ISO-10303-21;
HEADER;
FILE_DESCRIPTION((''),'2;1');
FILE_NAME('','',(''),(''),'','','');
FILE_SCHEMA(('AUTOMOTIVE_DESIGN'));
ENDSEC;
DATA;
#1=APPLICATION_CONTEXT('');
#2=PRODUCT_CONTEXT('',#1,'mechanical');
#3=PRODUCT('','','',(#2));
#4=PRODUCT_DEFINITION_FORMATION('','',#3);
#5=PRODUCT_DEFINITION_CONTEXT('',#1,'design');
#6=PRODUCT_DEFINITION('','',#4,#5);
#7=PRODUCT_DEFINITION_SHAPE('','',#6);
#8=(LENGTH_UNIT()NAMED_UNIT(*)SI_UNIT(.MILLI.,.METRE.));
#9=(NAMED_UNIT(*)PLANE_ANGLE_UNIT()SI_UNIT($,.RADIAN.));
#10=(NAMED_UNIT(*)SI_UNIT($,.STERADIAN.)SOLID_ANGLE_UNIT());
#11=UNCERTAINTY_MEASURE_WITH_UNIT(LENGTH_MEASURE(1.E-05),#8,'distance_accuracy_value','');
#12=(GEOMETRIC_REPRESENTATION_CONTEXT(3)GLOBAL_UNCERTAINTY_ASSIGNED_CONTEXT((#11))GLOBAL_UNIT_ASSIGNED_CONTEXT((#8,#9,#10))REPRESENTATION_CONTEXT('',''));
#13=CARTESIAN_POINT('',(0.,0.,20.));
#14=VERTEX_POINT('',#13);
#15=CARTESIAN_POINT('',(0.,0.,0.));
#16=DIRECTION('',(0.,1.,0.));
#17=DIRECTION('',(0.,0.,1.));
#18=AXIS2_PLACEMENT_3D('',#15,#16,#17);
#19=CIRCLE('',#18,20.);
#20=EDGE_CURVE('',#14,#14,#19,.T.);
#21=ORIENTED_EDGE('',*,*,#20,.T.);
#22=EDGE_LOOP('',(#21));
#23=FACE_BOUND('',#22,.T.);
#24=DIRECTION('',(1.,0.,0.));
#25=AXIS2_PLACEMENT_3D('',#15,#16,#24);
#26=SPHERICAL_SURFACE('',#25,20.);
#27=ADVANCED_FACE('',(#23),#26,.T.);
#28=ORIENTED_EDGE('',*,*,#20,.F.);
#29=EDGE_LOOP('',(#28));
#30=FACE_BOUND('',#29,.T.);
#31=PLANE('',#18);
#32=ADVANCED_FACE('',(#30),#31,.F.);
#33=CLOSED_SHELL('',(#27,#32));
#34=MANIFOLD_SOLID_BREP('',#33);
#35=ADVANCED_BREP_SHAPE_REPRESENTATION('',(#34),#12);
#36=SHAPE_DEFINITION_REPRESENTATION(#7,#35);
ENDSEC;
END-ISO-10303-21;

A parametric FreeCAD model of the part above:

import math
import FreeCAD as App
import Part
import Sketcher
from FreeCAD import Vector

doc = App.newDocument("Part")
body = doc.addObject("PartDesign::Body", "Body")

# Sketch on XY plane
sketch1 = body.newObject("Sketcher::SketchObject", "Sketch")
sketch1.AttachmentSupport = (doc.getObject("XY_Plane"), [""])
sketch1.MapMode = "FlatFace"
sketch1.addGeometry([
    Part.LineSegment(Vector(0, 20, 0), Vector(0, 0, 0)),
    Part.LineSegment(Vector(0, 0, 0), Vector(20, 0, 0)),
    Part.ArcOfCircle(Part.Circle(Vector(0, 0, 0), Vector(0, 0, 1), 20), math.radians(0), math.radians(90)),
], False)
sketch1.addConstraint([
    Sketcher.Constraint("Coincident", 0, 2, 1, 1),
    Sketcher.Constraint("Coincident", 1, 2, 2, 1),
    Sketcher.Constraint("Coincident", 2, 2, 0, 1),
    Sketcher.Constraint("Vertical", 0),
    Sketcher.Constraint("Horizontal", 1),
    Sketcher.Constraint("Coincident", 2, 3, -1, 1),
    Sketcher.Constraint("Coincident", 0, 2, -1, 1),
    Sketcher.Constraint("Radius", 2, 20.0),
])
revolution = body.newObject("PartDesign::Revolution", "Revolution")
revolution.Profile = sketch1
revolution.ReferenceAxis = (sketch1, ["V_Axis"])
revolution.Angle = 360

doc.recompute()
